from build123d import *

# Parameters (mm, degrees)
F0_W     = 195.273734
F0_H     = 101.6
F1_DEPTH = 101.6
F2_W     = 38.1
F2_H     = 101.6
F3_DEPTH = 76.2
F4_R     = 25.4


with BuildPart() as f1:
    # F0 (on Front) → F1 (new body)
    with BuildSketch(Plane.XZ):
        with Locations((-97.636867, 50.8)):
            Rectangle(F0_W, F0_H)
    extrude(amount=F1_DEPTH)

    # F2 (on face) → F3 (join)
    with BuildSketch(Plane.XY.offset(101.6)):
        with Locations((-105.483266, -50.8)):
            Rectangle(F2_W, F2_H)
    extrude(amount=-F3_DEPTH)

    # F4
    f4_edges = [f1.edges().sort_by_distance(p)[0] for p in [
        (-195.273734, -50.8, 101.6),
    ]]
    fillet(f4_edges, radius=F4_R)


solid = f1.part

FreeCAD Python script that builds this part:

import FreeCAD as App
import Part
import Sketcher

V = App.Vector
Q = App.Units.Quantity


def edges_at(feature, points):
    """Names of the edges that pass closest to the given points."""
    edges = feature.Shape.Edges
    near = lambda p: min(range(len(edges)), key=lambda i: edges[i].distToShape(Part.Vertex(*p))[0])
    return sorted({f"Edge{near(p) + 1}" for p in points})


def add_polygon(sketch, points):
    """Adds a closed chain of lines whose ends are joined by coincident constraints."""
    first, n = sketch.GeometryCount, len(points)
    for a, b in zip(points, points[1:] + points[:1]):
        sketch.addGeometry(Part.LineSegment(App.Vector(*a, 0), App.Vector(*b, 0)), False)
    for i in range(n):
        sketch.addConstraint(Sketcher.Constraint("Coincident", first + i, 2, first + (i + 1) % n, 1))

doc = App.newDocument("Part")
params = doc.addObject("Spreadsheet::Sheet", "Params")
for row, (alias, value) in enumerate([
    ("sketch1_height", "4 in"),
    ("pad1_length", "4 in"),
    ("sketch2_height", "4 in"),
    ("sketch2_width", "1.5 in"),
    ("pad2_length", "3 in"),
    ("fillet_radius", "1 in"),
], start=1):
    params.set(f"A{row}", alias)
    params.set(f"B{row}", "=" + value)
    params.setAlias(f"B{row}", alias)

body = doc.addObject("PartDesign::Body", "Body")

sketch1 = body.newObject("Sketcher::SketchObject", "Sketch")
sketch1.AttachmentSupport = (doc.getObject("XZ_Plane"), [""])
sketch1.MapMode = "FlatFace"
add_polygon(sketch1, [(-195, 102), (-195, 0), (0, 0), (0, 102)])
sketch1.addConstraint(Sketcher.Constraint("Vertical", 0))
sketch1.addConstraint(Sketcher.Constraint("Horizontal", 1))
sketch1.addConstraint(Sketcher.Constraint("Vertical", 2))
sketch1.addConstraint(Sketcher.Constraint("Horizontal", 3))
sketch1.addConstraint(Sketcher.Constraint("Coincident", 1, 2, -1, 1))
sketch1.addConstraint(Sketcher.Constraint("DistanceY", 0, 2, 0, 1, Q("4 in")))
sketch1.addConstraint(Sketcher.Constraint("DistanceX", 1, 1, 1, 2, Q("195.273734 mm")))
sketch1.setExpression("Constraints[9]", "Params.sketch1_height")
pad1 = body.newObject("PartDesign::Pad", "Pad")
pad1.Profile = sketch1
pad1.setExpression("Length", "Params.pad1_length")

sketch2 = body.newObject("Sketcher::SketchObject", "Sketch001")
sketch2.AttachmentSupport = (doc.getObject("XY_Plane"), [""])
sketch2.MapMode = "FlatFace"
sketch2.AttachmentOffset = App.Placement(V(0, 0, 4 * 25.4), App.Rotation())
add_polygon(sketch2, [(-125, 0), (-125, -102), (-86, -102), (-86, 0)])
sketch2.addConstraint(Sketcher.Constraint("Vertical", 0))
sketch2.addConstraint(Sketcher.Constraint("Horizontal", 1))
sketch2.addConstraint(Sketcher.Constraint("Vertical", 2))
sketch2.addConstraint(Sketcher.Constraint("Horizontal", 3))
sketch2.addConstraint(Sketcher.Constraint("PointOnObject", 2, 2, -1))
sketch2.addConstraint(Sketcher.Constraint("DistanceY", 0, 2, 0, 1, Q("4 in")))
sketch2.addConstraint(Sketcher.Constraint("DistanceX", 1, 1, 1, 2, Q("1.5 in")))
sketch2.addConstraint(Sketcher.Constraint("DistanceX", 0, 2, -1, 1, Q("124.533266 mm")))
sketch2.setExpression("Constraints[9]", "Params.sketch2_height")
sketch2.setExpression("Constraints[10]", "Params.sketch2_width")
pad2 = body.newObject("PartDesign::Pad", "Pad001")
pad2.Profile = sketch2
pad2.setExpression("Length", "Params.pad2_length")
pad2.Reversed = True
doc.recompute()

fillet = body.newObject("PartDesign::Fillet", "Fillet")
fillet.Base = (pad2, edges_at(pad2, [(-195.274, -50.8, 101.6)]))
fillet.setExpression("Radius", "Params.fillet_radius")

doc.recompute()
